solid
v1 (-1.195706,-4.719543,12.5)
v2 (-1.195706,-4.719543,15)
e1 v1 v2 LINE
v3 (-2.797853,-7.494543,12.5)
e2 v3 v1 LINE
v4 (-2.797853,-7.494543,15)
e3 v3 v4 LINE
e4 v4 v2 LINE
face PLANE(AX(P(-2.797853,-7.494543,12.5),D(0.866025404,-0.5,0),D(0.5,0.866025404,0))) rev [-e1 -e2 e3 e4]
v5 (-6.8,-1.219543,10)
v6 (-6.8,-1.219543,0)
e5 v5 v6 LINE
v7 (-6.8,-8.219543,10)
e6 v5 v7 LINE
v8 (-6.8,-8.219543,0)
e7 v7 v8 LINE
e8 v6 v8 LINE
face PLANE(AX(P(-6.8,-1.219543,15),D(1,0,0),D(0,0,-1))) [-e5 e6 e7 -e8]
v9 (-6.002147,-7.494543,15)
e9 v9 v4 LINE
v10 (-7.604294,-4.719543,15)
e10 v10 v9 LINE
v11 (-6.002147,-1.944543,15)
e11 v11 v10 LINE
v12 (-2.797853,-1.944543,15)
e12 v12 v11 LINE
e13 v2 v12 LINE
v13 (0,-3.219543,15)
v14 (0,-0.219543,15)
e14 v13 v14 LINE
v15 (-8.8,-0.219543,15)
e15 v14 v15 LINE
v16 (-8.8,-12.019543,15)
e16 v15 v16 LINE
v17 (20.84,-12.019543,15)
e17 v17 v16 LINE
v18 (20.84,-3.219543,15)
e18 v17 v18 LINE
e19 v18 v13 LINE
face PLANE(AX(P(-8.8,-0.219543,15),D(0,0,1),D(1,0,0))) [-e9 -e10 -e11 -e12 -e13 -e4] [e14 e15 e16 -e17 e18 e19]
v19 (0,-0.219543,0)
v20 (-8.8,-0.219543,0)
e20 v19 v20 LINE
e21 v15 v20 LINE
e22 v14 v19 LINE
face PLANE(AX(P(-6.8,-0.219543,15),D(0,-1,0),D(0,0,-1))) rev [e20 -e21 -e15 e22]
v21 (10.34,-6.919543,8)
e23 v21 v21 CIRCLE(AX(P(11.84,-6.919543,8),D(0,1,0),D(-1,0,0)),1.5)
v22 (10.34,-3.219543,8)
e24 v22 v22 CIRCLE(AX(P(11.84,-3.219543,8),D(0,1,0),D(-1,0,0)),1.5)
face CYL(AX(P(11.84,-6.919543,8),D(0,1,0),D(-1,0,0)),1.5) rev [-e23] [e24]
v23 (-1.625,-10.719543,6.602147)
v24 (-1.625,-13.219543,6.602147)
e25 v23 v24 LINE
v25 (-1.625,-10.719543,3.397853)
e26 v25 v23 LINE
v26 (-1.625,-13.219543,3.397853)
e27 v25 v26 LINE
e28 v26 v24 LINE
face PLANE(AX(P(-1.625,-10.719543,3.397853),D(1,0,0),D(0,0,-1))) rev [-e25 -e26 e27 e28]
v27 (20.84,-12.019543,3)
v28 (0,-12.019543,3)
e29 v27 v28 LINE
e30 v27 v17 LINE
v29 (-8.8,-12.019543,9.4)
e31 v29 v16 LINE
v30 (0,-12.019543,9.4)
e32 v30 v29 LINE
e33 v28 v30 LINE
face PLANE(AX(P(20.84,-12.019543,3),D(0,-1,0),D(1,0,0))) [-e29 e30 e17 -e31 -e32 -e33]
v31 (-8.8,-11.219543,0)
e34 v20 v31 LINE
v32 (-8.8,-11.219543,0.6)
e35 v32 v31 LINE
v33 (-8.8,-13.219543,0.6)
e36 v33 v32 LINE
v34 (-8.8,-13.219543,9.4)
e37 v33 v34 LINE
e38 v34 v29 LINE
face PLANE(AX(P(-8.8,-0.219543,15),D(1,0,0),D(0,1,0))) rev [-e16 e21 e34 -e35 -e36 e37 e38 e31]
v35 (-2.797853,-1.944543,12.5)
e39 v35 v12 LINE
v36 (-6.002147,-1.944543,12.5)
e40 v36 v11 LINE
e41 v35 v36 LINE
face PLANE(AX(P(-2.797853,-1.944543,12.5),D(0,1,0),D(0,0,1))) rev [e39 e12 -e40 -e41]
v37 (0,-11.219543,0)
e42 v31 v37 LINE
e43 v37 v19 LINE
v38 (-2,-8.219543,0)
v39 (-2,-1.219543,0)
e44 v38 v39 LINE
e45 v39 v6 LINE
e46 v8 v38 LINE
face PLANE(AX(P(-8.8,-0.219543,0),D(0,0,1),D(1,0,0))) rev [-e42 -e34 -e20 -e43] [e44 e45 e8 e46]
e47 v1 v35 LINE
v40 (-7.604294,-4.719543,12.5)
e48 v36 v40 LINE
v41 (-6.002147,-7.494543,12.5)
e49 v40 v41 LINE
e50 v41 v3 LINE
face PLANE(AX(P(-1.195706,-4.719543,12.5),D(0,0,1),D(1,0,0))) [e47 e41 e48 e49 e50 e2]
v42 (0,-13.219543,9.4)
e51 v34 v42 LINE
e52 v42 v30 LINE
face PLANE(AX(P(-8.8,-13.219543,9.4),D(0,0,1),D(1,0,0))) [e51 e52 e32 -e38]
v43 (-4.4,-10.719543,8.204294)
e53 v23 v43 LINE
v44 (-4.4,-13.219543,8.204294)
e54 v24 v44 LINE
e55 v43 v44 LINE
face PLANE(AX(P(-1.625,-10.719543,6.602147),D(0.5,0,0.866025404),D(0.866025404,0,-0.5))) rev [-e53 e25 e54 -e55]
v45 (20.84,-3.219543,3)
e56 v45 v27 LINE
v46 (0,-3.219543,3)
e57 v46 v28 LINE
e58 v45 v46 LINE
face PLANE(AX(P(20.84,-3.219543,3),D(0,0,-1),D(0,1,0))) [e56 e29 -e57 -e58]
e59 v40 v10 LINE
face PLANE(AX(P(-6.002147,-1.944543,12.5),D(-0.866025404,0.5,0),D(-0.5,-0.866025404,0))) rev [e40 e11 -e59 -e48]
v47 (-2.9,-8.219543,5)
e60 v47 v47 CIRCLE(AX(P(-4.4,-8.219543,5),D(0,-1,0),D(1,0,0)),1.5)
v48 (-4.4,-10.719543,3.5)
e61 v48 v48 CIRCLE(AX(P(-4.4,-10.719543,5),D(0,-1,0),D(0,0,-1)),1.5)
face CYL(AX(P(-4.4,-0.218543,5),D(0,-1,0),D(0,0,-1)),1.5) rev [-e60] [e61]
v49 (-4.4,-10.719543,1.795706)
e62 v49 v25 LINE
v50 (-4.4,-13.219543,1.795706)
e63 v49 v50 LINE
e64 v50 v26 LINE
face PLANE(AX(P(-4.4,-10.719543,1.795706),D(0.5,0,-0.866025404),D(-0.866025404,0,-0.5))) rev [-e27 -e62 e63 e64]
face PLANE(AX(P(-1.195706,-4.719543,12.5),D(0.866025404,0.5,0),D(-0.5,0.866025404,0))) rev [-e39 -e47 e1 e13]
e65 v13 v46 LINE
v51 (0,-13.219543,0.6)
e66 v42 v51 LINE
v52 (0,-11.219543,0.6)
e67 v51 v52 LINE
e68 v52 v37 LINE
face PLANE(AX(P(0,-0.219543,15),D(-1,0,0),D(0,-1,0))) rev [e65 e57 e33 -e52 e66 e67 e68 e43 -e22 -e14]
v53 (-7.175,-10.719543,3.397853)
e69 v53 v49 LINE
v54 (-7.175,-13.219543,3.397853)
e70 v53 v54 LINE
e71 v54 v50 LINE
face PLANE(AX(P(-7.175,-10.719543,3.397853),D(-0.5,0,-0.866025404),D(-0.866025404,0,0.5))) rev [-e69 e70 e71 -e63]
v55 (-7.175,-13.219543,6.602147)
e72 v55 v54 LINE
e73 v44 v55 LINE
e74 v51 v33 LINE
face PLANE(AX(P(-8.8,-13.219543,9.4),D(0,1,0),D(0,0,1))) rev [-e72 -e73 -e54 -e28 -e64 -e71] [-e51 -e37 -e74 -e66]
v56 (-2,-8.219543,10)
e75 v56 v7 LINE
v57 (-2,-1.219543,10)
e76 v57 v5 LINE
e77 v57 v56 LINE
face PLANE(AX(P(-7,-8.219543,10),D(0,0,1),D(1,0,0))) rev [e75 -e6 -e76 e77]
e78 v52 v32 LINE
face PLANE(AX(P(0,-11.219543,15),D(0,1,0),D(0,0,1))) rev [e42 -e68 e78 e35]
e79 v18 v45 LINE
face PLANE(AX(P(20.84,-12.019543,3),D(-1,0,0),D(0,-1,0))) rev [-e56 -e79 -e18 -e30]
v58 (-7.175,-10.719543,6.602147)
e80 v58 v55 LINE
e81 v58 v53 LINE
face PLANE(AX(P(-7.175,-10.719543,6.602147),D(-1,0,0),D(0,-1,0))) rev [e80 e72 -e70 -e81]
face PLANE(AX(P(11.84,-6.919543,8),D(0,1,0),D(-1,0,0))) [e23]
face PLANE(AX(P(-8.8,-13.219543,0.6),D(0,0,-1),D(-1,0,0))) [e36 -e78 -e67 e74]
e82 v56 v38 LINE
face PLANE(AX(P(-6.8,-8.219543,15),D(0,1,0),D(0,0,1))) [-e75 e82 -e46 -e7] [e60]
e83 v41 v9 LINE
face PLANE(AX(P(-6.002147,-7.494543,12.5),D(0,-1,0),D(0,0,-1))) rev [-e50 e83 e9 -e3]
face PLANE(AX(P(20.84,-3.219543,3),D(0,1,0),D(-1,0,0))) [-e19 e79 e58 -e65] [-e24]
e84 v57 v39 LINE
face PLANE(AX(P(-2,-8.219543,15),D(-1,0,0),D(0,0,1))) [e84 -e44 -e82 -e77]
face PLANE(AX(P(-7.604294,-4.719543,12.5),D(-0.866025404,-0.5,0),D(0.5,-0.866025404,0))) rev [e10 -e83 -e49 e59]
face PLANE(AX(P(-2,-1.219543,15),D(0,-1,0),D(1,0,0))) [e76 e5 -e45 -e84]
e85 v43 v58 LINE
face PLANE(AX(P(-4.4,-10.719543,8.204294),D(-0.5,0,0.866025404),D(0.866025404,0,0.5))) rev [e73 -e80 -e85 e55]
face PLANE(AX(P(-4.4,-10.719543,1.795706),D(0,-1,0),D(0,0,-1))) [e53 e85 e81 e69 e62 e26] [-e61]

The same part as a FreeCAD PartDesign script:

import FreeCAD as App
import Part
import Sketcher
Q = App.Units.Quantity


def add_polygon(sketch, points):
    """Adds a closed chain of lines whose ends are joined by coincident constraints."""
    first, n = sketch.GeometryCount, len(points)
    for a, b in zip(points, points[1:] + points[:1]):
        sketch.addGeometry(Part.LineSegment(App.Vector(*a, 0), App.Vector(*b, 0)), False)
    for i in range(n):
        sketch.addConstraint(Sketcher.Constraint("Coincident", first + i, 2, first + (i + 1) % n, 1))

doc = App.newDocument("Part")
body = doc.addObject("PartDesign::Body", "Body")

sketch1 = body.newObject("Sketcher::SketchObject", "Sketch")
sketch1.AttachmentSupport = (doc.getObject("XY_Plane"), [""])
sketch1.MapMode = "FlatFace"
add_polygon(sketch1, [(0, -0.219543), (-8.8, -0.219543), (-8.8, -11.219543), (0, -11.219543)])
add_polygon(sketch1, [(-6.8, -8.219543), (-6.8, -1.219543), (-2, -1.219543), (-2, -8.219543)])
sketch1.addConstraint([
    Sketcher.Constraint("Horizontal", 0),
    Sketcher.Constraint("Vertical", 1),
    Sketcher.Constraint("Horizontal", 2),
    Sketcher.Constraint("Vertical", 3),
    Sketcher.Constraint("Vertical", 4),
    Sketcher.Constraint("Horizontal", 5),
    Sketcher.Constraint("Vertical", 6),
    Sketcher.Constraint("Horizontal", 7),
    Sketcher.Constraint("PointOnObject", 2, 2, -2),
    Sketcher.Constraint("DistanceY", 1, 2, 1, 1, 11.0),
    Sketcher.Constraint("DistanceY", 4, 1, 4, 2, 7.0),
    Sketcher.Constraint("DistanceX", 0, 2, 0, 1, 8.8),
    Sketcher.Constraint("DistanceX", 5, 1, 5, 2, 4.8),
    Sketcher.Constraint("DistanceX", 5, 2, -1, 1, 2.0),
    Sketcher.Constraint("DistanceY", 4, 2, 0, 2, 1.0),
    Sketcher.Constraint("DistanceY", 0, 2, -1, 1, 0.219543),
])
pad1 = body.newObject("PartDesign::Pad", "Pad")
pad1.Profile = sketch1
pad1.Length = 15

sketch2 = body.newObject("Sketcher::SketchObject", "Sketch001")
sketch2.AttachmentSupport = (doc.getObject("YZ_Plane"), [""])
sketch2.MapMode = "FlatFace"
sketch2.AttachmentOffset = App.Placement(App.Vector(0, 0, -2), App.Rotation())
add_polygon(sketch2, [(-1.219543, 10), (-8.219543, 10), (-8.219543, 15), (-1.219543, 15)])
sketch2.addConstraint([
    Sketcher.Constraint("Horizontal", 0),
    Sketcher.Constraint("Vertical", 1),
    Sketcher.Constraint("Horizontal", 2),
    Sketcher.Constraint("Vertical", 3),
    Sketcher.Constraint("DistanceX", 0, 2, 0, 1, 7.0),
    Sketcher.Constraint("DistanceY", 1, 1, 1, 2, 5.0),
    Sketcher.Constraint("DistanceY", -1, 1, 0, 2, 10.0),
    Sketcher.Constraint("DistanceX", 0, 2, -1, 1, 8.219543),
])
pad2 = body.newObject("PartDesign::Pad", "Pad001")
pad2.Profile = sketch2
pad2.Length = 5
pad2.Reversed = True

sketch3 = body.newObject("Sketcher::SketchObject", "Sketch002")
sketch3.AttachmentSupport = (doc.getObject("XY_Plane"), [""])
sketch3.MapMode = "FlatFace"
sketch3.AttachmentOffset = App.Placement(App.Vector(0, 0, 15), App.Rotation())
sketch3.addGeometry(Part.Circle(App.Vector(-4.4, -4.719543, 0), App.Vector(0, 0, 1), 1.5), False)
sketch3.addConstraint([
    Sketcher.Constraint("Diameter", 0, 3.0),
    Sketcher.Constraint("DistanceX", 0, 3, -1, 1, 4.4),
    Sketcher.Constraint("DistanceY", 0, 3, -1, 1, 4.719543),
])
pocket1 = body.newObject("PartDesign::Pocket", "Pocket")
pocket1.Profile = sketch3
pocket1.Length = 15

sketch4 = body.newObject("Sketcher::SketchObject", "Sketch003")
sketch4.AttachmentSupport = (doc.getObject("YZ_Plane"), [""])
sketch4.MapMode = "FlatFace"
sketch4.AttachmentOffset = App.Placement(App.Vector(0, 0, -8.8), App.Rotation())
add_polygon(sketch4, [(-3.219543, 3), (-12.019543, 3), (-12.019543, 15), (-3.219543, 15)])
sketch4.addConstraint([
    Sketcher.Constraint("Horizontal", 0),
    Sketcher.Constraint("Vertical", 1),
    Sketcher.Constraint("Horizontal", 2),
    Sketcher.Constraint("Vertical", 3),
    Sketcher.Constraint("DistanceY", 1, 1, 1, 2, 12.0),
    Sketcher.Constraint("DistanceX", 0, 2, 0, 1, 8.8),
    Sketcher.Constraint("DistanceY", -1, 1, 0, 2, 3.0),
    Sketcher.Constraint("DistanceX", 0, 2, -1, 1, 12.019543),
])
pad3 = body.newObject("PartDesign::Pad", "Pad002")
pad3.Profile = sketch4
pad3.Length = 29.64

sketch5 = body.newObject("Sketcher::SketchObject", "Sketch004")
sketch5.AttachmentSupport = (doc.getObject("XY_Plane"), [""])
sketch5.MapMode = "FlatFace"
sketch5.AttachmentOffset = App.Placement(App.Vector(0, 0, 15), App.Rotation())
add_polygon(sketch5, [(-1.195706, -4.719543), (-2.797853, -1.944543), (-6.002147, -1.944543), (-7.604294, -4.719543), (-6.002147, -7.494543), (-2.797853, -7.494543)])
sketch5.addConstraint([
    Sketcher.Constraint("Horizontal", 1),
    Sketcher.Constraint("Horizontal", 4),
    Sketcher.Constraint("Parallel", 0, 3),
    Sketcher.Constraint("Parallel", 2, 5),
    Sketcher.Constraint("Horizontal", 2, 2, 5, 2),
    Sketcher.Constraint("Vertical", 1, 2, 3, 2),
    Sketcher.Constraint("Vertical", 0, 2, 4, 2),
    Sketcher.Constraint("Angle", 0, Q("120 deg")),
    Sketcher.Constraint("DistanceY", 3, 2, 1, 2, 5.55),
    Sketcher.Constraint("DistanceX", 1, 2, 1, 1, 3.204294),
    Sketcher.Constraint("DistanceX", 0, 2, -1, 1, 2.797853),
    Sketcher.Constraint("DistanceY", 0, 2, -1, 1, 1.944543),
])
pocket2 = body.newObject("PartDesign::Pocket", "Pocket001")
pocket2.Profile = sketch5
pocket2.Length = 2.5

sketch6 = body.newObject("Sketcher::SketchObject", "Sketch005")
sketch6.AttachmentSupport = (doc.getObject("XZ_Plane"), [""])
sketch6.MapMode = "FlatFace"
sketch6.AttachmentOffset = App.Placement(App.Vector(0, 0, 11.219543), App.Rotation())
sketch6.addGeometry(Part.Circle(App.Vector(-4.4, 5, 0), App.Vector(0, 0, 1), 1.5), False)
sketch6.addConstraint([
    Sketcher.Constraint("Diameter", 0, 3.0),
    Sketcher.Constraint("DistanceY", -1, 1, 0, 3, 5.0),
    Sketcher.Constraint("DistanceX", 0, 3, -1, 1, 4.4),
])
pocket3 = body.newObject("PartDesign::Pocket", "Pocket002")
pocket3.Profile = sketch6
pocket3.Type = "UpToFirst"

sketch7 = body.newObject("Sketcher::SketchObject", "Sketch006")
sketch7.AttachmentSupport = (doc.getObject("XZ_Plane"), [""])
sketch7.MapMode = "FlatFace"
sketch7.AttachmentOffset = App.Placement(App.Vector(0, 0, 11.219543), App.Rotation())
add_polygon(sketch7, [(0, 9.4), (0, 0.6), (-8.8, 0.6), (-8.8, 9.4)])
sketch7.addConstraint([
    Sketcher.Constraint("Vertical", 0),
    Sketcher.Constraint("Horizontal", 1),
    Sketcher.Constraint("Vertical", 2),
    Sketcher.Constraint("Horizontal", 3),
    Sketcher.Constraint("PointOnObject", 0, 2, -2),
    Sketcher.Constraint("Equal", 3, 0),
    Sketcher.Constraint("DistanceX", 1, 2, 1, 1, 8.8),
    Sketcher.Constraint("DistanceY", -1, 1, 0, 2, 0.6),
])
pad4 = body.newObject("PartDesign::Pad", "Pad003")
pad4.Profile = sketch7
pad4.Length = 2

sketch8 = body.newObject("Sketcher::SketchObject", "Sketch007")
sketch8.AttachmentSupport = (doc.getObject("XZ_Plane"), [""])
sketch8.MapMode = "FlatFace"
sketch8.AttachmentOffset = App.Placement(App.Vector(0, 0, 13.219543), App.Rotation())
add_polygon(sketch8, [(-4.4, 1.795706), (-1.625, 3.397853), (-1.625, 6.602147), (-4.4, 8.204294), (-7.175, 6.602147), (-7.175, 3.397853)])
sketch8.addConstraint([
    Sketcher.Constraint("Vertical", 1),
    Sketcher.Constraint("Vertical", 4),
    Sketcher.Constraint("Parallel", 0, 3),
    Sketcher.Constraint("Parallel", 2, 5),
    Sketcher.Constraint("Horizontal", 1, 2, 3, 2),
    Sketcher.Constraint("Horizontal", 0, 2, 4, 2),
    Sketcher.Constraint("Vertical", 2, 2, 5, 2),
    Sketcher.Constraint("Angle", 0, Q("30 deg")),
    Sketcher.Constraint("DistanceX", 2, 2, -1, 1, 4.4),
    Sketcher.Constraint("DistanceX", 3, 2, 1, 2, 5.55),
    Sketcher.Constraint("DistanceY", 1, 1, 1, 2, 3.204294),
    Sketcher.Constraint("DistanceY", -1, 1, 0, 2, 3.397853),
])
pocket4 = body.newObject("PartDesign::Pocket", "Pocket003")
pocket4.Profile = sketch8
pocket4.Length = 2.5

sketch9 = body.newObject("Sketcher::SketchObject", "Sketch008")
sketch9.AttachmentSupport = (doc.getObject("XZ_Plane"), [""])
sketch9.MapMode = "FlatFace"
sketch9.AttachmentOffset = App.Placement(App.Vector(0, 0, 3.219543), App.Rotation())
sketch9.addGeometry(Part.Circle(App.Vector(11.84, 8, 0), App.Vector(0, 0, 1), 1.5), False)
sketch9.addConstraint([
    Sketcher.Constraint("Diameter", 0, 3.0),
    Sketcher.Constraint("DistanceY", -1, 1, 0, 3, 8.0),
    Sketcher.Constraint("DistanceX", -1, 1, 0, 3, 11.84),
])
pocket5 = body.newObject("PartDesign::Pocket", "Pocket004")
pocket5.Profile = sketch9
pocket5.Length = 3.7
pocket5.Reversed = True

sketch10 = body.newObject("Sketcher::SketchObject", "Sketch009")
sketch10.AttachmentSupport = (doc.getObject("XY_Plane"), [""])
sketch10.MapMode = "FlatFace"
add_polygon(sketch10, [(-2, -1.219543), (-2, -8.219543), (-6.8, -8.219543), (-6.8, -1.219543)])
sketch10.addConstraint([
    Sketcher.Constraint("Vertical", 0),
    Sketcher.Constraint("Horizontal", 1),
    Sketcher.Constraint("Vertical", 2),
    Sketcher.Constraint("Horizontal", 3),
    Sketcher.Constraint("DistanceY", 0, 2, 0, 1, 7.0),
    Sketcher.Constraint("DistanceX", 1, 2, 1, 1, 4.8),
    Sketcher.Constraint("DistanceX", 0, 2, -1, 1, 2.0),
    Sketcher.Constraint("DistanceY", 0, 2, -1, 1, 8.219543),
])
pocket6 = body.newObject("PartDesign::Pocket", "Pocket005")
pocket6.Profile = sketch10
pocket6.Length = 10
pocket6.Reversed = True

doc.recompute()
